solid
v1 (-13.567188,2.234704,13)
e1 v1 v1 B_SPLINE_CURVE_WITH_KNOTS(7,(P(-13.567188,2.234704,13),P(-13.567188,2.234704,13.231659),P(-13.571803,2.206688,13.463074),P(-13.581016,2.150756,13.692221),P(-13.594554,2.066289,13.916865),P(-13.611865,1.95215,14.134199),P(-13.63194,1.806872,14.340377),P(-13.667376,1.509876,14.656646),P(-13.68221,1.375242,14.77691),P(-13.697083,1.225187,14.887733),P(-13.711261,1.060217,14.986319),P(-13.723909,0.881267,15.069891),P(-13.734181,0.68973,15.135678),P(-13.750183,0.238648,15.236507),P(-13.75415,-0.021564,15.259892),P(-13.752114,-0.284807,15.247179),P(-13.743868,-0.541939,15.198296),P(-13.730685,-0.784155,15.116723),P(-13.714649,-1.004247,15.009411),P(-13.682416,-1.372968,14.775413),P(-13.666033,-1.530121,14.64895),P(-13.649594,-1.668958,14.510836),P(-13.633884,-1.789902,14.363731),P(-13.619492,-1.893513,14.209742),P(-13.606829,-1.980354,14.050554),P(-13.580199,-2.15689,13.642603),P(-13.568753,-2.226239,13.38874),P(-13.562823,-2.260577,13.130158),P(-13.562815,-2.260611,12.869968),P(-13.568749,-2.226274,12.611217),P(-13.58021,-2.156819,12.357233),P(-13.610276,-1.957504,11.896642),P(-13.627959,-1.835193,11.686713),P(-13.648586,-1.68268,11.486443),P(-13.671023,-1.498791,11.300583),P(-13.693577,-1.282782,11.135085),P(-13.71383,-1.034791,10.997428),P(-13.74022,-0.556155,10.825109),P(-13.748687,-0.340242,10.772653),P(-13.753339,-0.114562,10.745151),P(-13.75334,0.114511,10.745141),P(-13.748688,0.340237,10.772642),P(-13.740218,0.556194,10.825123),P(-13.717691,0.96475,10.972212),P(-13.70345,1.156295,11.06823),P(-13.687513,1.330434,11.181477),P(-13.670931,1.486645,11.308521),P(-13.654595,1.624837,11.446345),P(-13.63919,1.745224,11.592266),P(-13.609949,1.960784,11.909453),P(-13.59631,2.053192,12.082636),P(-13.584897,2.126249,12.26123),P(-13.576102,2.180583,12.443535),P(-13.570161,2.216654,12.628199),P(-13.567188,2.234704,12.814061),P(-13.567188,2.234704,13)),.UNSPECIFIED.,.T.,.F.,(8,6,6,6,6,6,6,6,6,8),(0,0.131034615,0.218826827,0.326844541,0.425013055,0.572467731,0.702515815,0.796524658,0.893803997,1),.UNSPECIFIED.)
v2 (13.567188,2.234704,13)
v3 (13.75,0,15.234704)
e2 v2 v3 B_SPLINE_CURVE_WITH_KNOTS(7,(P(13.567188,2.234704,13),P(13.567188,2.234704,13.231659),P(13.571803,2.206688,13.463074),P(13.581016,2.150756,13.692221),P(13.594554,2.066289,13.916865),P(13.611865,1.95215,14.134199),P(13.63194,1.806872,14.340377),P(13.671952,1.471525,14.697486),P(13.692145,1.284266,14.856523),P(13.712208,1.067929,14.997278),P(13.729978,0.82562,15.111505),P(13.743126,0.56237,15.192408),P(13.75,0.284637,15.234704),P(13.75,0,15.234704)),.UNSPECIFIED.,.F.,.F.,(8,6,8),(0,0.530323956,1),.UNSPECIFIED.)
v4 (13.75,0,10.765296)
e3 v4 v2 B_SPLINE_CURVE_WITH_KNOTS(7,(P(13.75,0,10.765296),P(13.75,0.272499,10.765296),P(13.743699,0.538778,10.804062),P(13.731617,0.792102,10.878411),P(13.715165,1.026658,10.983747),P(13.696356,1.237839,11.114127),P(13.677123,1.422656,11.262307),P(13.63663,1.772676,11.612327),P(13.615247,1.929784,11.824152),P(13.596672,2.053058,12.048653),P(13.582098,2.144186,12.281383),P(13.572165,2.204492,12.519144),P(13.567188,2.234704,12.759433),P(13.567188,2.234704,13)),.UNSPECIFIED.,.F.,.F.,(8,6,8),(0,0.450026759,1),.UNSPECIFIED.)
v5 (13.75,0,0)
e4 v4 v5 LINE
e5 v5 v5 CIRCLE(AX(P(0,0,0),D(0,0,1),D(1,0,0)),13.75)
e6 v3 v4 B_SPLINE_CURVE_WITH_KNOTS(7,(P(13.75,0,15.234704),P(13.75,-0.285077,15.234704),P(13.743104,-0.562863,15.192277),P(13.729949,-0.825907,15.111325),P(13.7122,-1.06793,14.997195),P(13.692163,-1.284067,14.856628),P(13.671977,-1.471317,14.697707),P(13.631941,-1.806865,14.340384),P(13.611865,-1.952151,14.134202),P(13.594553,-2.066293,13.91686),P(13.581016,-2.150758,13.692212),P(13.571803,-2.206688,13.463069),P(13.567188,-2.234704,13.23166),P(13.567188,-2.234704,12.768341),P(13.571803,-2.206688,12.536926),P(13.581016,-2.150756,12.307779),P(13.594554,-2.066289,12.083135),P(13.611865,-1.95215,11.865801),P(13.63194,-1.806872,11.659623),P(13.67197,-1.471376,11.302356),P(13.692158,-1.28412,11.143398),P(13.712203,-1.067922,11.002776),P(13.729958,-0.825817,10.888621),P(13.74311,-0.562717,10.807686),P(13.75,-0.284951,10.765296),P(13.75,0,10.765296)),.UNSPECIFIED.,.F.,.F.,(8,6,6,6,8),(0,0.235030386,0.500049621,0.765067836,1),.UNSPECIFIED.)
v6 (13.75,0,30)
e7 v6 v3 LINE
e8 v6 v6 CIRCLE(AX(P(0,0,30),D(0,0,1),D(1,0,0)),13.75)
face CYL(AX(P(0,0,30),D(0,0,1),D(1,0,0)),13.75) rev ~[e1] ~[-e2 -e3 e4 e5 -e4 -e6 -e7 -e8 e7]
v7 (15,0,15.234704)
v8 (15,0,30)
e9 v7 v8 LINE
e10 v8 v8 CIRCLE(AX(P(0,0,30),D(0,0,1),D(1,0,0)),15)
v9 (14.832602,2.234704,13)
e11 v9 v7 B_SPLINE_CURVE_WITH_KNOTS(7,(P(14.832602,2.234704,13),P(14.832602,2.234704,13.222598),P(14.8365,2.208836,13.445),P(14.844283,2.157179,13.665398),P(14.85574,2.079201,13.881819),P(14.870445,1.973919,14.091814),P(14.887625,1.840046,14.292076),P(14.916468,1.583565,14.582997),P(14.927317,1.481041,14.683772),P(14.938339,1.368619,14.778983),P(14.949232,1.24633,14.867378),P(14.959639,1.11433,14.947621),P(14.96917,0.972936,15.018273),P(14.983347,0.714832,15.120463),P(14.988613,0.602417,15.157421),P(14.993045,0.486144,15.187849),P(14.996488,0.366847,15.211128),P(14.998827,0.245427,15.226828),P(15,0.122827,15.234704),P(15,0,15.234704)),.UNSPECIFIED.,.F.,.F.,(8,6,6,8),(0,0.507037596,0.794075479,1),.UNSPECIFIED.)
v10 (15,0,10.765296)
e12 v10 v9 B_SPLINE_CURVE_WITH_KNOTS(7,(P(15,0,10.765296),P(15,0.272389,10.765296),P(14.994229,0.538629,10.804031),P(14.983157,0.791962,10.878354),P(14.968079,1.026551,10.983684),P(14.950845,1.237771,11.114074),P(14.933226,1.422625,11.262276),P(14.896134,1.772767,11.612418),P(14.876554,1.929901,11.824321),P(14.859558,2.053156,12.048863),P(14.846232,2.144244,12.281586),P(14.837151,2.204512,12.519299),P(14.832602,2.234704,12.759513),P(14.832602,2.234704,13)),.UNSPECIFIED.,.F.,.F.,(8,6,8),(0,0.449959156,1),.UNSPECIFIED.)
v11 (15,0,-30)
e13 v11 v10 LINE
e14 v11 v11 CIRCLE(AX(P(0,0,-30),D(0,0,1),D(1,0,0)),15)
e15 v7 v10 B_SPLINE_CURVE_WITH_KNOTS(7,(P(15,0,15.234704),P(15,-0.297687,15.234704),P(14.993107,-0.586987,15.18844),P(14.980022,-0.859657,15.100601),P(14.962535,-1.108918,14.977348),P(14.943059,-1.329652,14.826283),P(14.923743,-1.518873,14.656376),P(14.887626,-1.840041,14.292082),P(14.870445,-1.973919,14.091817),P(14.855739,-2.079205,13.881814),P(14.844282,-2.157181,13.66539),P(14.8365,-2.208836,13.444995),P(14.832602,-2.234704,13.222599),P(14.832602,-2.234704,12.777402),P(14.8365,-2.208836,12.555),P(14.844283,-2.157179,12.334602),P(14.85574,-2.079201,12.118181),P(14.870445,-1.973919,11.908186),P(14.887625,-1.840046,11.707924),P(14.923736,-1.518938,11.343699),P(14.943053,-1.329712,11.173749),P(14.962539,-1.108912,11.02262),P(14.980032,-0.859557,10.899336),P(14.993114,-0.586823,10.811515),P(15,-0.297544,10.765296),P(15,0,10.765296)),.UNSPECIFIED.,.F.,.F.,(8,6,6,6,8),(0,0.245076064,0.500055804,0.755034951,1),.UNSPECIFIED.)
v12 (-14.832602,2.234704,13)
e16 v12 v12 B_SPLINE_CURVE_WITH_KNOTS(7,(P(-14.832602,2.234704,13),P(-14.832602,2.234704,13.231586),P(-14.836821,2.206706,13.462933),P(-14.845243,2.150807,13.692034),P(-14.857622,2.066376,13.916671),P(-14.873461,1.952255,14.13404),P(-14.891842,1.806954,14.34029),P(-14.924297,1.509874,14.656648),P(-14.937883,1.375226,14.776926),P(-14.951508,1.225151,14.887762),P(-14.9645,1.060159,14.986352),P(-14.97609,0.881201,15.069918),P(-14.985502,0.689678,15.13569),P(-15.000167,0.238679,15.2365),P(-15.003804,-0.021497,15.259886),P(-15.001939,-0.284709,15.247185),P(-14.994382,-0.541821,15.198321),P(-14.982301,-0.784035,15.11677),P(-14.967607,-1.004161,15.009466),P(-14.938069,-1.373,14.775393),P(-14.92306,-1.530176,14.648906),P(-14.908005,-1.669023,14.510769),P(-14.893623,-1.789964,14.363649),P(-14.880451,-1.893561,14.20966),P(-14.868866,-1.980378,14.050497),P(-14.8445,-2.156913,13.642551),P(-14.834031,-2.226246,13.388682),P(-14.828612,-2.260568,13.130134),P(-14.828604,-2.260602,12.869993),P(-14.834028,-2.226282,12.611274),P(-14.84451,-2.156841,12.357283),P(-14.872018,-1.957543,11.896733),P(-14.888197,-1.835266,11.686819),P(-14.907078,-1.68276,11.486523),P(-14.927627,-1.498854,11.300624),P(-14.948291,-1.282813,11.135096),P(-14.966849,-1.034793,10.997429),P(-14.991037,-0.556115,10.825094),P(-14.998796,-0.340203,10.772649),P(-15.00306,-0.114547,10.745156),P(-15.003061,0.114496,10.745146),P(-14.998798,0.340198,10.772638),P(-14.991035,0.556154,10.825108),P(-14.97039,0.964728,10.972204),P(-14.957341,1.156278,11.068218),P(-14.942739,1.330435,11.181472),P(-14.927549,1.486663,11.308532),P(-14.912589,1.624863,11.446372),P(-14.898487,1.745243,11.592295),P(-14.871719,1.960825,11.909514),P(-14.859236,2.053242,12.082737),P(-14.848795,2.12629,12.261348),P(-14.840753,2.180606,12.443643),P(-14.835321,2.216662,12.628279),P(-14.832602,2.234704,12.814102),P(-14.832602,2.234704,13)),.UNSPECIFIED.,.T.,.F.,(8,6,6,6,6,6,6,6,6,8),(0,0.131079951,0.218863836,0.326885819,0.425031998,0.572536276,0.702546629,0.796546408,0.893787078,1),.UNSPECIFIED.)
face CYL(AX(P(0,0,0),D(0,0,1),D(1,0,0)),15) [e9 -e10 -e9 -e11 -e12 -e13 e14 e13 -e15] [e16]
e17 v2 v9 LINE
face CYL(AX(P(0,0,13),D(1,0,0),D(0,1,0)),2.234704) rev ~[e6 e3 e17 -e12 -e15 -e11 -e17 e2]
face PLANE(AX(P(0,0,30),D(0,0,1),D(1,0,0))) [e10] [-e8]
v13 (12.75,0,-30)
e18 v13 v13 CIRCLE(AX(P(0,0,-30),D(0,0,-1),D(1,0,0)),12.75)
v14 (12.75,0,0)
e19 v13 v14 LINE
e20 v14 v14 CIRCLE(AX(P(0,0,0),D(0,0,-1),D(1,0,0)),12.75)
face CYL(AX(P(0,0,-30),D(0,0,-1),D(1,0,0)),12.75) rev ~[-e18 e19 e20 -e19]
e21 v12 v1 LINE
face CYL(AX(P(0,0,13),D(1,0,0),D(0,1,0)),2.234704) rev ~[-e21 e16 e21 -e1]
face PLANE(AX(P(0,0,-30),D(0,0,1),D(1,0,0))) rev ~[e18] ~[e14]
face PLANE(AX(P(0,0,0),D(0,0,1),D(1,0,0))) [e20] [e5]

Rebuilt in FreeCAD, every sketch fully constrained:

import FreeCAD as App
import Part
import Sketcher

V = App.Vector

doc = App.newDocument("Part")
params = doc.addObject("Spreadsheet::Sheet", "Params")
for row, (alias, value) in enumerate([
    ("sketch1_diameter", "30 mm"),
    ("sketch1_diameter2", "27 mm"),
    ("pad1_length", "30 mm"),
    ("sketch2_diameter", "30 mm"),
    ("sketch2_diameter2", "25 mm"),
    ("pad2_length", "30 mm"),
    ("pocket1_length", "100 mm"),
    ("sketch4_diameter", "27.5 mm"),
    ("pocket2_length", "30 mm"),
    ("sketch5_diameter", "25.5 mm"),
    ("pocket3_length", "30 mm"),
], start=1):
    params.set(f"A{row}", alias)
    params.set(f"B{row}", "=" + value)
    params.setAlias(f"B{row}", alias)

body = doc.addObject("PartDesign::Body", "Body")

# Sketch on XY plane
sketch1 = doc.addObject("Sketcher::SketchObject", "Sketch")
body.addObject(sketch1)
sketch1.AttachmentSupport = (doc.XY_Plane, [""])
sketch1.MapMode = "FlatFace"
sketch1.addGeometry([
    Part.Circle(V(0, 0, 0), V(0, 0, 1), 15),
    Part.Circle(V(0, 0, 0), V(0, 0, 1), 13.5),
], False)
sketch1.addConstraint([
    Sketcher.Constraint("Coincident", 0, 3, -1, 1),
    Sketcher.Constraint("Coincident", 1, 3, -1, 1),
    Sketcher.Constraint("Diameter", 0, 30.0),
    Sketcher.Constraint("Diameter", 1, 27.0),
])
sketch1.setExpression("Constraints[2]", "Params.sketch1_diameter")
sketch1.setExpression("Constraints[3]", "Params.sketch1_diameter2")
pad1 = doc.addObject("PartDesign::Pad", "Pad")
body.addObject(pad1)
pad1.Profile = sketch1
pad1.setExpression("Length", "Params.pad1_length")

# Sketch on XY plane
sketch2 = doc.addObject("Sketcher::SketchObject", "Sketch001")
body.addObject(sketch2)
sketch2.AttachmentSupport = (doc.XY_Plane, [""])
sketch2.MapMode = "FlatFace"
sketch2.addGeometry([
    Part.Circle(V(0, 0, 0), V(0, 0, 1), 15),
    Part.Circle(V(0, 0, 0), V(0, 0, 1), 12.5),
], False)
sketch2.addConstraint([
    Sketcher.Constraint("Coincident", 0, 3, -1, 1),
    Sketcher.Constraint("Coincident", 1, 3, -1, 1),
    Sketcher.Constraint("Diameter", 0, 30.0),
    Sketcher.Constraint("Diameter", 1, 25.0),
])
sketch2.setExpression("Constraints[2]", "Params.sketch2_diameter")
sketch2.setExpression("Constraints[3]", "Params.sketch2_diameter2")
pad2 = doc.addObject("PartDesign::Pad", "Pad001")
body.addObject(pad2)
pad2.Profile = sketch2
pad2.setExpression("Length", "Params.pad2_length")
pad2.Reversed = True

# Sketch on YZ plane
sketch3 = doc.addObject("Sketcher::SketchObject", "Sketch002")
body.addObject(sketch3)
sketch3.AttachmentSupport = (doc.YZ_Plane, [""])
sketch3.MapMode = "FlatFace"
sketch3.addGeometry(Part.Circle(V(0, 13, 0), V(0, 0, 1), 2.234704), False)
sketch3.addConstraint([
    Sketcher.Constraint("PointOnObject", 0, 3, -2),
    Sketcher.Constraint("DistanceY", -1, 1, 0, 3, 13.0),
    Sketcher.Constraint("Diameter", 0, 4.469409),
])
pocket1 = doc.addObject("PartDesign::Pocket", "Pocket")
body.addObject(pocket1)
pocket1.Profile = sketch3
pocket1.setExpression("Length", "Params.pocket1_length")
pocket1.Midplane = True

# Sketch on XY plane
sketch4 = doc.addObject("Sketcher::SketchObject", "Sketch003")
body.addObject(sketch4)
sketch4.AttachmentSupport = (doc.XY_Plane, [""])
sketch4.MapMode = "FlatFace"
sketch4.AttachmentOffset = App.Placement(V(0, 0, 30), App.Rotation())
sketch4.addGeometry(Part.Circle(V(0, 0, 0), V(0, 0, 1), 13.75), False)
sketch4.addConstraint([
    Sketcher.Constraint("Coincident", 0, 3, -1, 1),
    Sketcher.Constraint("Diameter", 0, 27.5),
])
sketch4.setExpression("Constraints[1]", "Params.sketch4_diameter")
pocket2 = doc.addObject("PartDesign::Pocket", "Pocket001")
body.addObject(pocket2)
pocket2.Profile = sketch4
pocket2.setExpression("Length", "Params.pocket2_length")

# Sketch on XY plane
sketch5 = doc.addObject("Sketcher::SketchObject", "Sketch004")
body.addObject(sketch5)
sketch5.AttachmentSupport = (doc.XY_Plane, [""])
sketch5.MapMode = "FlatFace"
sketch5.AttachmentOffset = App.Placement(V(0, 0, -30), App.Rotation())
sketch5.addGeometry(Part.Circle(V(0, 0, 0), V(0, 0, 1), 12.75), False)
sketch5.addConstraint([
    Sketcher.Constraint("Coincident", 0, 3, -1, 1),
    Sketcher.Constraint("Diameter", 0, 25.5),
])
sketch5.setExpression("Constraints[1]", "Params.sketch5_diameter")
pocket3 = doc.addObject("PartDesign::Pocket", "Pocket002")
body.addObject(pocket3)
pocket3.Profile = sketch5
pocket3.setExpression("Length", "Params.pocket3_length")
pocket3.Reversed = True

doc.recompute()
